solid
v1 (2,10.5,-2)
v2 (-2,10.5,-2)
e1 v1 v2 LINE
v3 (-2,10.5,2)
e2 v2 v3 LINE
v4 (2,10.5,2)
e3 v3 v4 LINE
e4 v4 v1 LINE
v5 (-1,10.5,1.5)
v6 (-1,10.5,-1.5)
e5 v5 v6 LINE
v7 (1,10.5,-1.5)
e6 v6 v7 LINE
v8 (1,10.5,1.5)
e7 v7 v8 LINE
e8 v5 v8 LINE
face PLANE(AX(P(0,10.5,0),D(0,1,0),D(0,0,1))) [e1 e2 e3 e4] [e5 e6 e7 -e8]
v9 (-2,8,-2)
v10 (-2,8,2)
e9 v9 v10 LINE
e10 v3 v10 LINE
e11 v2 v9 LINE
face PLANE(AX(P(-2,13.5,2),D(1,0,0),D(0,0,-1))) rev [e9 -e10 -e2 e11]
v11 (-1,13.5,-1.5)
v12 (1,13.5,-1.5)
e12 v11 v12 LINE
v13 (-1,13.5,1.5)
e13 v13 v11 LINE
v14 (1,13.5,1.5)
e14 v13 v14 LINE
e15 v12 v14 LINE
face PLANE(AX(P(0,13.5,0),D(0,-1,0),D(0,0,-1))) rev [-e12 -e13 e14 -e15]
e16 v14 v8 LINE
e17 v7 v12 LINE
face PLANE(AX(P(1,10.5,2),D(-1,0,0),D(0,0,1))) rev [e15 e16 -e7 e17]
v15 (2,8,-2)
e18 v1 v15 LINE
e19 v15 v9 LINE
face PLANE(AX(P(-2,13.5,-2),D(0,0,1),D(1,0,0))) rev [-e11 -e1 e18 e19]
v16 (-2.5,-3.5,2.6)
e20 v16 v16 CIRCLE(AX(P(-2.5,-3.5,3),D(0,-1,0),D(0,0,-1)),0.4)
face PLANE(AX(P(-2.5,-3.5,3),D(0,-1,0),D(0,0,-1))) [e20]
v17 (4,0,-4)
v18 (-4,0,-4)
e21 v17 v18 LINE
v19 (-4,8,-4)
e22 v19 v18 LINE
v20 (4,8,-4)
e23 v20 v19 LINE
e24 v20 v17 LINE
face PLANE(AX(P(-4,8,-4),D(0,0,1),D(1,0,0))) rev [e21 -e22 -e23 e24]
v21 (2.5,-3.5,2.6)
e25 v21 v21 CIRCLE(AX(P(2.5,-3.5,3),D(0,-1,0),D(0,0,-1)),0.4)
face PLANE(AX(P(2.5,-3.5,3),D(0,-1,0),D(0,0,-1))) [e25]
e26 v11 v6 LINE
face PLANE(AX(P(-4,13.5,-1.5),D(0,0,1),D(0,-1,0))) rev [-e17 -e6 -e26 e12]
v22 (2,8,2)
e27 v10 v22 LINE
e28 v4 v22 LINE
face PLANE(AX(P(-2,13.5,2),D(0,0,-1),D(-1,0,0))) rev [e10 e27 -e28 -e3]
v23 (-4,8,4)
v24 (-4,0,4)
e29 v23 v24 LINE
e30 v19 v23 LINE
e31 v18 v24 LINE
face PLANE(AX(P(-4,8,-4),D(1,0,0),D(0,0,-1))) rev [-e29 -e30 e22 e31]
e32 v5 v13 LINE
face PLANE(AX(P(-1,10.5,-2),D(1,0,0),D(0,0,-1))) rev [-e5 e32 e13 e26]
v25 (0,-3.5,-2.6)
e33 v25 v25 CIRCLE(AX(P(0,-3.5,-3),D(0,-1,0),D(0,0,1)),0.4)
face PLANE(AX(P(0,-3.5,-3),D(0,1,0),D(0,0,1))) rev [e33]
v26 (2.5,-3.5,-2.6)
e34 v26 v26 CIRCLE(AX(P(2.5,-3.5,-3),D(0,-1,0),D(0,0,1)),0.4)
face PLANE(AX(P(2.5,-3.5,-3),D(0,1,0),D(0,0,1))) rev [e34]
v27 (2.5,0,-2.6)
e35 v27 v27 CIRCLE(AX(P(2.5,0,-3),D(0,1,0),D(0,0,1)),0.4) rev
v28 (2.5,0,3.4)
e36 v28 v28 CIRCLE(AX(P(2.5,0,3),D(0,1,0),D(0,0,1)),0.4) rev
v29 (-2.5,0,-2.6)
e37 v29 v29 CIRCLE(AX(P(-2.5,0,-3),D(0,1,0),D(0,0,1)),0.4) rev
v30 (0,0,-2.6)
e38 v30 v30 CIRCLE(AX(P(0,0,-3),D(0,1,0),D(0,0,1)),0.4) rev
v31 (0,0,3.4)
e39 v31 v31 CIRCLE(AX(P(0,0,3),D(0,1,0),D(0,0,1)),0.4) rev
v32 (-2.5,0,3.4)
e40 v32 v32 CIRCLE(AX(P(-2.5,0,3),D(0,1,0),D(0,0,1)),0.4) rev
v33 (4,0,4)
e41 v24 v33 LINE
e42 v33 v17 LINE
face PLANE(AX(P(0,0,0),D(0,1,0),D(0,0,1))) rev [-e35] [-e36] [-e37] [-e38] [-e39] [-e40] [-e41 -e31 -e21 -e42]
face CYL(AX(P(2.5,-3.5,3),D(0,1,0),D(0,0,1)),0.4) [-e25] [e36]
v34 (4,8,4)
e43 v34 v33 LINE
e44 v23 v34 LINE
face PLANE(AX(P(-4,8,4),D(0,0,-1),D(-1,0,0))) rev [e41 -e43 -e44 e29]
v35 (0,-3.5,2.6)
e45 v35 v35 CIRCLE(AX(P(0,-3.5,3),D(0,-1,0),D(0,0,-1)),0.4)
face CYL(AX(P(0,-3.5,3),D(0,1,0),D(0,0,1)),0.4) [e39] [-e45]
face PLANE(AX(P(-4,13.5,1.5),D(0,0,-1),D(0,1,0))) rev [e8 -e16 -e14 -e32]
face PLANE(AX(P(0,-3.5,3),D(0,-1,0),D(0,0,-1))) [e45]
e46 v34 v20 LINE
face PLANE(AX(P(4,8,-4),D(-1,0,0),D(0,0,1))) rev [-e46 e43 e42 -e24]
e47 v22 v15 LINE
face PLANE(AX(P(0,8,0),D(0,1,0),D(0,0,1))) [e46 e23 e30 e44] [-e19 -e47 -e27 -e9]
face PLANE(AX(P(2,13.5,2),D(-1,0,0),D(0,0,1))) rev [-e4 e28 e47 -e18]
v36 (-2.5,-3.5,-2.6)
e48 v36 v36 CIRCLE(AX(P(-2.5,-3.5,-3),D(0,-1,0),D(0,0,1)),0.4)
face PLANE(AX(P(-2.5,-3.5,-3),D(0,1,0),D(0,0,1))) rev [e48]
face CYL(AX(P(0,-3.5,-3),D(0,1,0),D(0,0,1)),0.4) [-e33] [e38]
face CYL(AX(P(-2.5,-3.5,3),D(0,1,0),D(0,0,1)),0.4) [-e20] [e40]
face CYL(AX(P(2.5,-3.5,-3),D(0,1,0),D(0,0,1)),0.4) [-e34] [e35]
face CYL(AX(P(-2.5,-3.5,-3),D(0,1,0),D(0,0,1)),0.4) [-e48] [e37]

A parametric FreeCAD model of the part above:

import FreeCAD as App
import Part
import Sketcher

V = App.Vector

doc = App.newDocument("Part")
body = doc.addObject("PartDesign::Body", "Body")

sketch1 = doc.addObject("Sketcher::SketchObject", "Sketch")
body.addObject(sketch1)
sketch1.AttachmentSupport = (doc.XZ_Plane, [""])
sketch1.MapMode = "FlatFace"
sketch1.addGeometry([
    Part.LineSegment(V(-4, -4, 0), V(-4, 4, 0)),
    Part.LineSegment(V(-4, 4, 0), V(4, 4, 0)),
    Part.LineSegment(V(4, 4, 0), V(4, -4, 0)),
    Part.LineSegment(V(4, -4, 0), V(-4, -4, 0)),
], False)
sketch1.addConstraint([
    Sketcher.Constraint("Coincident", 0, 2, 1, 1),
    Sketcher.Constraint("Coincident", 1, 2, 2, 1),
    Sketcher.Constraint("Coincident", 2, 2, 3, 1),
    Sketcher.Constraint("Coincident", 3, 2, 0, 1),
    Sketcher.Constraint("Vertical", 0),
    Sketcher.Constraint("Horizontal", 1),
    Sketcher.Constraint("Vertical", 2),
    Sketcher.Constraint("Horizontal", 3),
    Sketcher.Constraint("Symmetric", 0, 2, 2, 2, -1, 1),
    Sketcher.Constraint("Equal", 3, 0),
    Sketcher.Constraint("DistanceX", 1, 1, 1, 2, 8.0),
])
pad1 = doc.addObject("PartDesign::Pad", "Pad")
body.addObject(pad1)
pad1.Profile = sketch1
pad1.Length = 8
pad1.Reversed = True

sketch2 = doc.addObject("Sketcher::SketchObject", "Sketch001")
body.addObject(sketch2)
sketch2.AttachmentSupport = (doc.XZ_Plane, [""])
sketch2.MapMode = "FlatFace"
sketch2.AttachmentOffset = App.Placement(V(0, 0, -8), App.Rotation())
sketch2.addGeometry([
    Part.LineSegment(V(-2, -2, 0), V(-2, 2, 0)),
    Part.LineSegment(V(-2, 2, 0), V(2, 2, 0)),
    Part.LineSegment(V(2, 2, 0), V(2, -2, 0)),
    Part.LineSegment(V(2, -2, 0), V(-2, -2, 0)),
], False)
sketch2.addConstraint([
    Sketcher.Constraint("Coincident", 0, 2, 1, 1),
    Sketcher.Constraint("Coincident", 1, 2, 2, 1),
    Sketcher.Constraint("Coincident", 2, 2, 3, 1),
    Sketcher.Constraint("Coincident", 3, 2, 0, 1),
    Sketcher.Constraint("Vertical", 0),
    Sketcher.Constraint("Horizontal", 1),
    Sketcher.Constraint("Vertical", 2),
    Sketcher.Constraint("Horizontal", 3),
    Sketcher.Constraint("Symmetric", 0, 2, 2, 2, -1, 1),
    Sketcher.Constraint("Equal", 3, 0),
    Sketcher.Constraint("DistanceX", 1, 1, 1, 2, 4.0),
])
pad2 = doc.addObject("PartDesign::Pad", "Pad001")
body.addObject(pad2)
pad2.Profile = sketch2
pad2.Length = 5.5
pad2.Reversed = True

sketch3 = doc.addObject("Sketcher::SketchObject", "Sketch002")
body.addObject(sketch3)
sketch3.AttachmentSupport = (doc.XZ_Plane, [""])
sketch3.MapMode = "FlatFace"
sketch3.addGeometry([
    Part.Circle(V(0, 3, 0), V(0, 0, 1), 0.4),
    Part.Circle(V(-2.5, 3, 0), V(0, 0, 1), 0.4),
    Part.Circle(V(2.5, 3, 0), V(0, 0, 1), 0.4),
    Part.Circle(V(2.5, -3, 0), V(0, 0, 1), 0.4),
    Part.Circle(V(-2.5, -3, 0), V(0, 0, 1), 0.4),
    Part.Circle(V(0, -3, 0), V(0, 0, 1), 0.4),
], False)
sketch3.addConstraint([
    Sketcher.Constraint("Equal", 0, 1),
    Sketcher.Constraint("Equal", 1, 2),
    Sketcher.Constraint("Equal", 2, 3),
    Sketcher.Constraint("Equal", 3, 4),
    Sketcher.Constraint("Equal", 4, 5),
    Sketcher.Constraint("Symmetric", 1, 3, 3, 3, -1, 1),
    Sketcher.Constraint("Symmetric", 2, 3, 4, 3, -1, 1),
    Sketcher.Constraint("Symmetric", 0, 3, 5, 3, -1, 1),
    Sketcher.Constraint("Symmetric", 1, 3, 2, 3, -2),
    Sketcher.Constraint("PointOnObject", 0, 3, -2),
    Sketcher.Constraint("Horizontal", 0, 3, 1, 3),
    Sketcher.Constraint("Diameter", 0, 0.8),
    Sketcher.Constraint("DistanceY", -1, 1, 0, 3, 3.0),
    Sketcher.Constraint("DistanceX", 1, 3, 2, 3, 5.0),
])
pad3 = doc.addObject("PartDesign::Pad", "Pad002")
body.addObject(pad3)
pad3.Profile = sketch3
pad3.Length = 3.5

sketch4 = doc.addObject("Sketcher::SketchObject", "Sketch003")
body.addObject(sketch4)
sketch4.AttachmentSupport = (doc.XZ_Plane, [""])
sketch4.MapMode = "FlatFace"
sketch4.AttachmentOffset = App.Placement(V(0, 0, -13.5), App.Rotation())
sketch4.addGeometry([
    Part.LineSegment(V(-2, -2, 0), V(-2, 2, 0)),
    Part.LineSegment(V(-2, 2, 0), V(-1, 2, 0)),
    Part.LineSegment(V(-1, 2, 0), V(-1, -2, 0)),
    Part.LineSegment(V(-1, -2, 0), V(-2, -2, 0)),
    Part.LineSegment(V(1, -2, 0), V(1, 2, 0)),
    Part.LineSegment(V(1, 2, 0), V(2, 2, 0)),
    Part.LineSegment(V(2, 2, 0), V(2, -2, 0)),
    Part.LineSegment(V(2, -2, 0), V(1, -2, 0)),
], False)
sketch4.addConstraint([
    Sketcher.Constraint("Coincident", 0, 2, 1, 1),
    Sketcher.Constraint("Coincident", 1, 2, 2, 1),
    Sketcher.Constraint("Coincident", 2, 2, 3, 1),
    Sketcher.Constraint("Coincident", 3, 2, 0, 1),
    Sketcher.Constraint("Coincident", 4, 2, 5, 1),
    Sketcher.Constraint("Coincident", 5, 2, 6, 1),
    Sketcher.Constraint("Coincident", 6, 2, 7, 1),
    Sketcher.Constraint("Coincident", 7, 2, 4, 1),
    Sketcher.Constraint("Vertical", 0),
    Sketcher.Constraint("Horizontal", 1),
    Sketcher.Constraint("Vertical", 2),
    Sketcher.Constraint("Horizontal", 3),
    Sketcher.Constraint("Vertical", 4),
    Sketcher.Constraint("Horizontal", 5),
    Sketcher.Constraint("Vertical", 6),
    Sketcher.Constraint("Horizontal", 7),
    Sketcher.Constraint("Symmetric", 2, 2, 4, 2, -1, 1),
    Sketcher.Constraint("Symmetric", 0, 2, 6, 2, -1, 1),
    Sketcher.Constraint("Horizontal", 1, 2, 4, 2),
    Sketcher.Constraint("DistanceX", 1, 1, 1, 2, 1.0),
    Sketcher.Constraint("DistanceY", 0, 1, 0, 2, 4.0),
    Sketcher.Constraint("DistanceX", 0, 2, -1, 1, 2.0),
])
pocket1 = doc.addObject("PartDesign::Pocket", "Pocket")
body.addObject(pocket1)
pocket1.Profile = sketch4
pocket1.Length = 3
pocket1.Reversed = True

sketch5 = doc.addObject("Sketcher::SketchObject", "Sketch004")
body.addObject(sketch5)
sketch5.AttachmentSupport = (doc.YZ_Plane, [""])
sketch5.MapMode = "FlatFace"
sketch5.addGeometry([
    Part.LineSegment(V(13.5, 2, 0), V(10.5, 2, 0)),
    Part.LineSegment(V(10.5, 2, 0), V(10.5, 1.5, 0)),
    Part.LineSegment(V(10.5, 1.5, 0), V(13.5, 1.5, 0)),
    Part.LineSegment(V(13.5, 1.5, 0), V(13.5, 2, 0)),
    Part.LineSegment(V(13.5, -1.5, 0), V(10.5, -1.5, 0)),
    Part.LineSegment(V(10.5, -1.5, 0), V(10.5, -2, 0)),
    Part.LineSegment(V(10.5, -2, 0), V(13.5, -2, 0)),
    Part.LineSegment(V(13.5, -2, 0), V(13.5, -1.5, 0)),
], False)
sketch5.addConstraint([
    Sketcher.Constraint("Coincident", 0, 2, 1, 1),
    Sketcher.Constraint("Coincident", 1, 2, 2, 1),
    Sketcher.Constraint("Coincident", 2, 2, 3, 1),
    Sketcher.Constraint("Coincident", 3, 2, 0, 1),
    Sketcher.Constraint("Coincident", 4, 2, 5, 1),
    Sketcher.Constraint("Coincident", 5, 2, 6, 1),
    Sketcher.Constraint("Coincident", 6, 2, 7, 1),
    Sketcher.Constraint("Coincident", 7, 2, 4, 1),
    Sketcher.Constraint("Horizontal", 0),
    Sketcher.Constraint("Vertical", 1),
    Sketcher.Constraint("Horizontal", 2),
    Sketcher.Constraint("Vertical", 3),
    Sketcher.Constraint("Horizontal", 4),
    Sketcher.Constraint("Vertical", 5),
    Sketcher.Constraint("Horizontal", 6),
    Sketcher.Constraint("Vertical", 7),
    Sketcher.Constraint("Symmetric", 1, 2, 4, 2, -1),
    Sketcher.Constraint("Symmetric", 3, 2, 6, 2, -1),
    Sketcher.Constraint("DistanceX", 0, 2, 0, 1, 3.0),
    Sketcher.Constraint("DistanceY", 1, 2, 1, 1, 0.5),
    Sketcher.Constraint("DistanceY", -1, 1, 0, 2, 2.0),
    Sketcher.Constraint("DistanceX", -1, 1, 0, 2, 10.5),
])
pocket2 = doc.addObject("PartDesign::Pocket", "Pocket001")
body.addObject(pocket2)
pocket2.Profile = sketch5
pocket2.Type = "ThroughAll"
pocket2.Midplane = True

doc.recompute()
